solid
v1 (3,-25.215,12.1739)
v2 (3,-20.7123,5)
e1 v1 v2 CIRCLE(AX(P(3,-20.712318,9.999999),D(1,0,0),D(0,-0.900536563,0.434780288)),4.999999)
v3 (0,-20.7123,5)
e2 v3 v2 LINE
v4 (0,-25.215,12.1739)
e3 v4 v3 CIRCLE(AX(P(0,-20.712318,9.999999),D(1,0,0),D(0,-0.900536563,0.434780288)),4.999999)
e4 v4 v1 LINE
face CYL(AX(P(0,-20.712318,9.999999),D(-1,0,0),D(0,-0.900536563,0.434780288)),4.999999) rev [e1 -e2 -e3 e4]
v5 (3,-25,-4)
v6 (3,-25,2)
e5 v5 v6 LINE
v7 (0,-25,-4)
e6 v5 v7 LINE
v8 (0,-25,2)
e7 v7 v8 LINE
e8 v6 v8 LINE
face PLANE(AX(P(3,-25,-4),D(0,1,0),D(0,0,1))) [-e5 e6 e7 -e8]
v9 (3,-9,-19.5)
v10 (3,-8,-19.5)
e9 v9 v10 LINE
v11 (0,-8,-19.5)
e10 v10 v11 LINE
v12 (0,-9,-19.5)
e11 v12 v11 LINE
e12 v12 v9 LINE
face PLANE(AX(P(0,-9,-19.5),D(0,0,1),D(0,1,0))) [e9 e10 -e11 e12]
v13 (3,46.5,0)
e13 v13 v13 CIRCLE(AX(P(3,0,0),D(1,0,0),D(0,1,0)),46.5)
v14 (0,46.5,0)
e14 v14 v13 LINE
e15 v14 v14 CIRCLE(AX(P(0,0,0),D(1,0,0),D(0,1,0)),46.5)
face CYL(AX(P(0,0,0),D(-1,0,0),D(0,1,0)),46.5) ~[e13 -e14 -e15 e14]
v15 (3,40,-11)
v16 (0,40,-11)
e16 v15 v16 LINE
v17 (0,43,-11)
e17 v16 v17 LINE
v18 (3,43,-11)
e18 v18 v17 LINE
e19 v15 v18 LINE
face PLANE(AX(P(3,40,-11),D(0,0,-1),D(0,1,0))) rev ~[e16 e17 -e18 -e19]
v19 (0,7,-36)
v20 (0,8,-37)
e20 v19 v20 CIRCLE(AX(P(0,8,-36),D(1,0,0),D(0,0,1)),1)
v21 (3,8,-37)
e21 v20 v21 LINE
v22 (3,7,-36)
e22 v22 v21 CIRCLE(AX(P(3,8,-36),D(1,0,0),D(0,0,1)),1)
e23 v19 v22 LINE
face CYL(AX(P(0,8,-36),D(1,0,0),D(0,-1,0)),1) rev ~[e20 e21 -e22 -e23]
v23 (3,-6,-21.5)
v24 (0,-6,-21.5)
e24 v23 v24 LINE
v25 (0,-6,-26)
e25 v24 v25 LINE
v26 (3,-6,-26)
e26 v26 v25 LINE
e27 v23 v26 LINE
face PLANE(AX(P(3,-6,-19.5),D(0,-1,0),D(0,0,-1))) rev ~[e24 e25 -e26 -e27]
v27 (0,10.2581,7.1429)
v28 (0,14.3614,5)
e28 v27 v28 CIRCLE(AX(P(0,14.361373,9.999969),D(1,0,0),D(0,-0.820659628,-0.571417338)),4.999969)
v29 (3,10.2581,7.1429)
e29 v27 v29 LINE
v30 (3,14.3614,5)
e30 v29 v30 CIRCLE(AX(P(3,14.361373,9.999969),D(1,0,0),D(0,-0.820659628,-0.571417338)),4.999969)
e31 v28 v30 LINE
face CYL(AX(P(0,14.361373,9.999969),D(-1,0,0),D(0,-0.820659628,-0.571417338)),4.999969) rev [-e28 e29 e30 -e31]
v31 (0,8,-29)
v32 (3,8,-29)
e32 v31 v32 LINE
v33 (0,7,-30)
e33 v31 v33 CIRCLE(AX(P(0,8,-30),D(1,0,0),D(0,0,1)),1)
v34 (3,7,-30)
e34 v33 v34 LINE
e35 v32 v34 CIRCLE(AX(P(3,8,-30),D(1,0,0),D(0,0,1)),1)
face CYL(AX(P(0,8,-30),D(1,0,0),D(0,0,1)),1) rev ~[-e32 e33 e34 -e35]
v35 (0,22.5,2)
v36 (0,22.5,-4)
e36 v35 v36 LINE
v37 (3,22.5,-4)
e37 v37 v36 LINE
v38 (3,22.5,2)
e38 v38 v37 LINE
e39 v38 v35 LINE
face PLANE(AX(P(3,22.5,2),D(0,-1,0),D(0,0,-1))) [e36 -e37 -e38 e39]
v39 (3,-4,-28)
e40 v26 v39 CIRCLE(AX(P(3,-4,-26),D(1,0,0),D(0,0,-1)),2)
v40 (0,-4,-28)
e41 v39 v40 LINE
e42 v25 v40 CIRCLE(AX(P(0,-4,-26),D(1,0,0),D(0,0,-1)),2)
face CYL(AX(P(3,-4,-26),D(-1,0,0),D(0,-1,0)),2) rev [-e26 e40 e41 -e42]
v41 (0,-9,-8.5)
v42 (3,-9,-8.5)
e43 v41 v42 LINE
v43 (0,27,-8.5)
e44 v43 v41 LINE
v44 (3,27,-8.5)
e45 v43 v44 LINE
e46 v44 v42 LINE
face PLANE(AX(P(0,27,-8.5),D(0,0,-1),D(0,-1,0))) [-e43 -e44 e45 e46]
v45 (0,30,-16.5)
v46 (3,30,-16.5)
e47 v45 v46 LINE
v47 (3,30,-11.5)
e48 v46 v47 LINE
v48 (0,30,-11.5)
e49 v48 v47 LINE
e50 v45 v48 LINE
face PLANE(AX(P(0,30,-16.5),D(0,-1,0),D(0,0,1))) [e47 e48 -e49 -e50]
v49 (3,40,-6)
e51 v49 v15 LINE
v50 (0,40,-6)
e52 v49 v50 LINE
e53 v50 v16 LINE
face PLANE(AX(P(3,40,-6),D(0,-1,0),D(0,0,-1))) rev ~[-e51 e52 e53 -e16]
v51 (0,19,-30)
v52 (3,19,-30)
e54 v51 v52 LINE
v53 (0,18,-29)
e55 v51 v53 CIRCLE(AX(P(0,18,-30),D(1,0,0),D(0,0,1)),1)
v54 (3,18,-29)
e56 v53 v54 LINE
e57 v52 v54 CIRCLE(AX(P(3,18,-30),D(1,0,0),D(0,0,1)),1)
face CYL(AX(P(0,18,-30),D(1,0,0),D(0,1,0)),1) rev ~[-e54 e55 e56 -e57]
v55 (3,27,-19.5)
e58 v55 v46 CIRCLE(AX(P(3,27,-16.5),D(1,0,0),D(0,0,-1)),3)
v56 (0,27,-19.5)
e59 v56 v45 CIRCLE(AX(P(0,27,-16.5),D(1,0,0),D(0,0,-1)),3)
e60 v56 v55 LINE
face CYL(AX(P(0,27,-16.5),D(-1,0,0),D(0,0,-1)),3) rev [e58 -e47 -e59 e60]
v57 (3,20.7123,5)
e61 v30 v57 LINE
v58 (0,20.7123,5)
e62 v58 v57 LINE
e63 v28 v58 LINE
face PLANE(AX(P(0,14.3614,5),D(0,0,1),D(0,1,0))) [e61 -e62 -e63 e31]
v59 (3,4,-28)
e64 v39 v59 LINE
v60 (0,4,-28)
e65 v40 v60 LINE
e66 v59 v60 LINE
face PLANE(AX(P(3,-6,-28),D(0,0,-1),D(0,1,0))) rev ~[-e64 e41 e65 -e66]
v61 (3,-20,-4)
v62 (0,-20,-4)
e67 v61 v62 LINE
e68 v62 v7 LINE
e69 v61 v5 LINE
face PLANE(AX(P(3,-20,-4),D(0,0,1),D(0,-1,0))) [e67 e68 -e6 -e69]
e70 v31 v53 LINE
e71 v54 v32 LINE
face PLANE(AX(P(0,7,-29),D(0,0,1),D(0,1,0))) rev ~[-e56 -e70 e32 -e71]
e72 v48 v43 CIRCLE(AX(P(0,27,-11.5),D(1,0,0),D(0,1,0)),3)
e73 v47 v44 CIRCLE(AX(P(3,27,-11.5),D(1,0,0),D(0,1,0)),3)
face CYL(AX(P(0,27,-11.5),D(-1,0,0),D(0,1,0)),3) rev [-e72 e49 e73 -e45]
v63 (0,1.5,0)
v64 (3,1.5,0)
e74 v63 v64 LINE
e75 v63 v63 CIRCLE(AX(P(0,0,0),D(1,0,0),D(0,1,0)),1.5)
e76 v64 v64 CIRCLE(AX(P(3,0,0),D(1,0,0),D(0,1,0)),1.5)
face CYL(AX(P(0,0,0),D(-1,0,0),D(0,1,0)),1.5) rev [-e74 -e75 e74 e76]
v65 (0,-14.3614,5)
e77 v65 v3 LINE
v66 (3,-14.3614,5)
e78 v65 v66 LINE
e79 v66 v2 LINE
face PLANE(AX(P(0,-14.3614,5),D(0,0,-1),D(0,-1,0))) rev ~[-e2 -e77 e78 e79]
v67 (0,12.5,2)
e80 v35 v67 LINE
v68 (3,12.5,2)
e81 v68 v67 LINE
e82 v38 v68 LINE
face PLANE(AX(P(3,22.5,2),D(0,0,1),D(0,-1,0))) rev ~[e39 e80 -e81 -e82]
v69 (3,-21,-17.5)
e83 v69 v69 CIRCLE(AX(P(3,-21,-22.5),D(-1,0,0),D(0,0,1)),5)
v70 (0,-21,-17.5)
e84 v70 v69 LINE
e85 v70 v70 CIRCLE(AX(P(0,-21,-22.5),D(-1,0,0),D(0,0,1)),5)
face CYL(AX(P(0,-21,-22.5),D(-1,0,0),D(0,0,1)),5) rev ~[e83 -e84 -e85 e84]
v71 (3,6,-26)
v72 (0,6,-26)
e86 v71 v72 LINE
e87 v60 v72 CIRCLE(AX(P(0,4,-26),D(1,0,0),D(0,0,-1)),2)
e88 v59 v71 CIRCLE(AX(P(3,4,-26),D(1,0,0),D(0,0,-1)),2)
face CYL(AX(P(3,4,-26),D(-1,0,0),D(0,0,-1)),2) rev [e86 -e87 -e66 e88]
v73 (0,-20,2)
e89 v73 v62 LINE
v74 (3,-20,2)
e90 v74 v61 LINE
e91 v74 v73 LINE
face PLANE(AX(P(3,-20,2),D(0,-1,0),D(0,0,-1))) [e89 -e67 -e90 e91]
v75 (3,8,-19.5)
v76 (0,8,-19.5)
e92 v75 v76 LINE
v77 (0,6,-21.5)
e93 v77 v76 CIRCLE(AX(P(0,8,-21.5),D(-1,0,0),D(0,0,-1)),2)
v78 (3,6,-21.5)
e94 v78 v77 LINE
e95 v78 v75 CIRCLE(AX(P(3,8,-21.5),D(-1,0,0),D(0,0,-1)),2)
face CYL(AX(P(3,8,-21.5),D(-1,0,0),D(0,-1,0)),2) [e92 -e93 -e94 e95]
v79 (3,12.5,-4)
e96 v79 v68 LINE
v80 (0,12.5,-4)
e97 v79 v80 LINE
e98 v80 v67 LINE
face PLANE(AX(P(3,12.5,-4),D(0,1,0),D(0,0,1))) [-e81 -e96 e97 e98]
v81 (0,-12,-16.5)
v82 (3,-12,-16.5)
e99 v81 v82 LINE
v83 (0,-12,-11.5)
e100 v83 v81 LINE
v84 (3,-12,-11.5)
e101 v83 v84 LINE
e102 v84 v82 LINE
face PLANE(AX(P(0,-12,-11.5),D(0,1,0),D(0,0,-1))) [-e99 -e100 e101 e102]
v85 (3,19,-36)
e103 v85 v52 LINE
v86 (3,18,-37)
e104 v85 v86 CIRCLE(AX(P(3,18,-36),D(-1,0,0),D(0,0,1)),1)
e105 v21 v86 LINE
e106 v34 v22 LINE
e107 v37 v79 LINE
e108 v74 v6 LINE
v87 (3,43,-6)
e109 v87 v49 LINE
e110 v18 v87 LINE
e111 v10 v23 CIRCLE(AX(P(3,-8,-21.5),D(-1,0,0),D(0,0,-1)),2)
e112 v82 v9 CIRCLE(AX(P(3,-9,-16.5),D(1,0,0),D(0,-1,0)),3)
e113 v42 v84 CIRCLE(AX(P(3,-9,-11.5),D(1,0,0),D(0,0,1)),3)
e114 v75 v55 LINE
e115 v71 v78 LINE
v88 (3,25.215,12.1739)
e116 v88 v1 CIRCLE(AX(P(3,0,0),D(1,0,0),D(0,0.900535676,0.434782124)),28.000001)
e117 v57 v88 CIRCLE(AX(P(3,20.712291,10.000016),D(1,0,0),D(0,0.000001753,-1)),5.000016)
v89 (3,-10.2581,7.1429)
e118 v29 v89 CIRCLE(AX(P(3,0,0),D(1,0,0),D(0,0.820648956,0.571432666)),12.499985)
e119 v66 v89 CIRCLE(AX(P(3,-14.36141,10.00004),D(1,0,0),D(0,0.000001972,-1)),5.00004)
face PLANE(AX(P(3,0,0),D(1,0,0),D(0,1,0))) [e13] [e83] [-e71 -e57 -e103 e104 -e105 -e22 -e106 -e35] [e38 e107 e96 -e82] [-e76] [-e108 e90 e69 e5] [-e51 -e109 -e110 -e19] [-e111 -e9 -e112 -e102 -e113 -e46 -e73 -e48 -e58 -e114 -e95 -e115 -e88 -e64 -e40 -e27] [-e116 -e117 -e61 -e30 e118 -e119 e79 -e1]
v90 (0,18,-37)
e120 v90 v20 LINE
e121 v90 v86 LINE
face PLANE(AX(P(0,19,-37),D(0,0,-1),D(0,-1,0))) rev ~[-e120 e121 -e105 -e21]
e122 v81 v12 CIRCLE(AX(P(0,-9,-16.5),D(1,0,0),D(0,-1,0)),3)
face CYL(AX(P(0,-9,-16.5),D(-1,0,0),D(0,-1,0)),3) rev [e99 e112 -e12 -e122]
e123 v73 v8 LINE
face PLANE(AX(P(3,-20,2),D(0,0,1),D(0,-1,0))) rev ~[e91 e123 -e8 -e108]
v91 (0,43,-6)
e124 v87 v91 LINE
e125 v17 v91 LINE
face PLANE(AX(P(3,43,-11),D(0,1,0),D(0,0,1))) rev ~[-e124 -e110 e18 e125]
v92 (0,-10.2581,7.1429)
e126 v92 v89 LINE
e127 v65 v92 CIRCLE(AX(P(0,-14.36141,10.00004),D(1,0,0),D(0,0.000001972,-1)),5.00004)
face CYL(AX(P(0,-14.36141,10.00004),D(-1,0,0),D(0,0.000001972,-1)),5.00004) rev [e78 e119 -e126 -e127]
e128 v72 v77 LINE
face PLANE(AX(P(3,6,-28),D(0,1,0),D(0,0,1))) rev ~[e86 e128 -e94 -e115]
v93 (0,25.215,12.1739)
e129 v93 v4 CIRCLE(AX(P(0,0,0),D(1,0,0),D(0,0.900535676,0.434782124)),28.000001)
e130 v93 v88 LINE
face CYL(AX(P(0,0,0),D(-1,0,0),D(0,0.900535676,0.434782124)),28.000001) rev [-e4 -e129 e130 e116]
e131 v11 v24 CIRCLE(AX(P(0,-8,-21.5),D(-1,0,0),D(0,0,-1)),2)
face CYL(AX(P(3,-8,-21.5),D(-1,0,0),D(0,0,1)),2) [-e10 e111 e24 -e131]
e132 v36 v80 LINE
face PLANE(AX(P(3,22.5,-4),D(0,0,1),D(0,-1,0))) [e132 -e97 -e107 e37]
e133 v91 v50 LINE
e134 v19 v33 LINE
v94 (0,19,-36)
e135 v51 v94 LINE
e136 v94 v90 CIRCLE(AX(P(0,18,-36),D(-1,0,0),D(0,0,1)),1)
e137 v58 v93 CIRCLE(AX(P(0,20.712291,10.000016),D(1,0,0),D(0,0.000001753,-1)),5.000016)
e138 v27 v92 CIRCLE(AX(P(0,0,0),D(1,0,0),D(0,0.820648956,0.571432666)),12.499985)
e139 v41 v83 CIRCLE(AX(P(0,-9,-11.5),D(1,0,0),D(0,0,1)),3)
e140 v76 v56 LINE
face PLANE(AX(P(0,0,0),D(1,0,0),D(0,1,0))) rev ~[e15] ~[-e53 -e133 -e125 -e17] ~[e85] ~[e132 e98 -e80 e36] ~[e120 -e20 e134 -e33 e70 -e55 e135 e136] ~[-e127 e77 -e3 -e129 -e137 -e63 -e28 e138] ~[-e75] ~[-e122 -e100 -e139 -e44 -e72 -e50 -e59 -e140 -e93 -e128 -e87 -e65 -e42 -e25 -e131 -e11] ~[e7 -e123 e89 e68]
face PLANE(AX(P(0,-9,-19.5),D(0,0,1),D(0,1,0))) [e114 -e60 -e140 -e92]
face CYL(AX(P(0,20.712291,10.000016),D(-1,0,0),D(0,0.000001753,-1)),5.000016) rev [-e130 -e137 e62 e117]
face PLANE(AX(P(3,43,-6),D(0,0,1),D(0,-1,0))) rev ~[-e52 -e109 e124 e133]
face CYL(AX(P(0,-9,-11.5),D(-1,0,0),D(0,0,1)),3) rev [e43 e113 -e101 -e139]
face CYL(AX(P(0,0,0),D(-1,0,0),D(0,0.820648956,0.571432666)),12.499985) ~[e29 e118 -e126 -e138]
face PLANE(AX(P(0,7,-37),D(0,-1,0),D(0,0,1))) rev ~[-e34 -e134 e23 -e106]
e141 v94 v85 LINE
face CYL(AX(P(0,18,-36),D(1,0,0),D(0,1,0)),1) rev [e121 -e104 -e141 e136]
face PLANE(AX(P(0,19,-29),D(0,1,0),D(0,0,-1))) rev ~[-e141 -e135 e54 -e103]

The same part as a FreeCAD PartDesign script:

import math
import FreeCAD as App
import Part
import Sketcher
from FreeCAD import Vector
Q = App.Units.Quantity


def edges_at(feature, points):
    """Names of the edges that pass closest to the given points."""
    edges = feature.Shape.Edges
    near = lambda p: min(range(len(edges)), key=lambda i: edges[i].distToShape(Part.Vertex(*p))[0])
    return sorted({f"Edge{near(p) + 1}" for p in points})


def add_polygon(sketch, points):
    """Adds a closed chain of lines whose ends are joined by coincident constraints."""
    first, n = sketch.GeometryCount, len(points)
    for a, b in zip(points, points[1:] + points[:1]):
        sketch.addGeometry(Part.LineSegment(App.Vector(*a, 0), App.Vector(*b, 0)), False)
    for i in range(n):
        sketch.addConstraint(Sketcher.Constraint("Coincident", first + i, 2, first + (i + 1) % n, 1))

doc = App.newDocument("Part")
body = doc.addObject("PartDesign::Body", "Body")

sketch1 = body.newObject("Sketcher::SketchObject", "Sketch")
sketch1.AttachmentSupport = (doc.getObject("YZ_Plane"), [""])
sketch1.MapMode = "FlatFace"
sketch1.addGeometry([
    Part.Circle(Vector(0, 0, 0), Vector(0, 0, 1), 46.5),
    Part.LineSegment(Vector(-9, -8.5, 0), Vector(27, -8.5, 0)),
    Part.ArcOfCircle(Part.Circle(Vector(27, -11.5, 0), Vector(0, 0, 1), 3), math.radians(0), math.radians(90)),
    Part.LineSegment(Vector(30, -11.5, 0), Vector(30, -16.5, 0)),
    Part.ArcOfCircle(Part.Circle(Vector(27, -16.5, 0), Vector(0, 0, 1), 3), math.radians(-90), math.radians(0)),
    Part.LineSegment(Vector(27, -19.5, 0), Vector(-9, -19.5, 0)),
    Part.ArcOfCircle(Part.Circle(Vector(-9, -16.5, 0), Vector(0, 0, 1), 3), math.radians(180), math.radians(270)),
    Part.LineSegment(Vector(-12, -16.5, 0), Vector(-12, -11.5, 0)),
    Part.ArcOfCircle(Part.Circle(Vector(-9, -11.5, 0), Vector(0, 0, 1), 3), math.radians(90), math.radians(180)),
    Part.ArcOfCircle(Part.Circle(Vector(0, 0, 0), Vector(0, 0, 1), 28), math.radians(26), math.radians(154)),
    Part.ArcOfCircle(Part.Circle(Vector(20.7, 10, 0), Vector(0, 0, 1), 5), math.radians(-90), math.radians(26)),
    Part.LineSegment(Vector(20.7, 5, 0), Vector(14.4, 5, 0)),
    Part.ArcOfCircle(Part.Circle(Vector(14.4, 10, 0), Vector(0, 0, 1), 5), math.radians(-145), math.radians(-90)),
    Part.ArcOfCircle(Part.Circle(Vector(0, 0, 0), Vector(0, 0, 1), 12.5), math.radians(35), math.radians(145)),
    Part.ArcOfCircle(Part.Circle(Vector(-14.4, 10, 0), Vector(0, 0, 1), 5), math.radians(-90), math.radians(-35)),
    Part.LineSegment(Vector(-14.4, 5, 0), Vector(-20.7, 5, 0)),
    Part.ArcOfCircle(Part.Circle(Vector(-20.7, 10, 0), Vector(0, 0, 1), 5), math.radians(154), math.radians(270)),
    Part.Circle(Vector(0, 0, 0), Vector(0, 0, 1), 1.5),
], False)
sketch1.addConstraint([
    Sketcher.Constraint("Tangent", 1, 2, 2, 2),
    Sketcher.Constraint("Tangent", 2, 1, 3, 1),
    Sketcher.Constraint("Tangent", 3, 2, 4, 2),
    Sketcher.Constraint("Tangent", 4, 1, 5, 1),
    Sketcher.Constraint("Tangent", 5, 2, 6, 2),
    Sketcher.Constraint("Tangent", 6, 1, 7, 1),
    Sketcher.Constraint("Tangent", 7, 2, 8, 2),
    Sketcher.Constraint("Tangent", 8, 1, 1, 1),
    Sketcher.Constraint("Tangent", 9, 1, 10, 2),
    Sketcher.Constraint("Tangent", 10, 1, 11, 1),
    Sketcher.Constraint("Tangent", 11, 2, 12, 2),
    Sketcher.Constraint("Tangent", 12, 1, 13, 1),
    Sketcher.Constraint("Tangent", 13, 2, 14, 2),
    Sketcher.Constraint("Tangent", 14, 1, 15, 1),
    Sketcher.Constraint("Tangent", 15, 2, 16, 2),
    Sketcher.Constraint("Tangent", 16, 1, 9, 2),
    Sketcher.Constraint("Horizontal", 1),
    Sketcher.Constraint("Vertical", 3),
    Sketcher.Constraint("Horizontal", 5),
    Sketcher.Constraint("Vertical", 7),
    Sketcher.Constraint("Horizontal", 11),
    Sketcher.Constraint("Horizontal", 15),
    Sketcher.Constraint("Coincident", 0, 3, -1, 1),
    Sketcher.Constraint("Coincident", 9, 3, -1, 1),
    Sketcher.Constraint("Coincident", 13, 3, -1, 1),
    Sketcher.Constraint("Coincident", 17, 3, -1, 1),
    Sketcher.Constraint("Equal", 2, 4),
    Sketcher.Constraint("Equal", 4, 6),
    Sketcher.Constraint("Equal", 6, 8),
    Sketcher.Constraint("Equal", 10, 12),
    Sketcher.Constraint("Equal", 12, 14),
    Sketcher.Constraint("Equal", 14, 16),
    Sketcher.Constraint("Horizontal", 12, 3, 14, 3),
    Sketcher.Constraint("Diameter", 0, Q("93 mm")),
    Sketcher.Constraint("Diameter", 17, Q("3 mm")),
    Sketcher.Constraint("Radius", 2, Q("3 mm")),
    Sketcher.Constraint("Radius", 9, Q("28 mm")),
    Sketcher.Constraint("Radius", 10, Q("5 mm")),
    Sketcher.Constraint("Radius", 13, Q("12.5 mm")),
    Sketcher.Constraint("DistanceY", 3, 2, 3, 1, Q("5 mm")),
    Sketcher.Constraint("DistanceX", 6, 1, -1, 1, Q("12 mm")),
    Sketcher.Constraint("DistanceY", -1, 1, 10, 1, Q("5 mm")),
    Sketcher.Constraint("DistanceY", 1, 2, -1, 1, Q("8.5 mm")),
    Sketcher.Constraint("DistanceX", 1, 1, 1, 2, Q("36 mm")),
])
pad1 = body.newObject("PartDesign::Pad", "Pad")
pad1.Profile = sketch1
pad1.Length = 3

sketch2 = body.newObject("Sketcher::SketchObject", "Sketch001")
sketch2.AttachmentSupport = (doc.getObject("YZ_Plane"), [""])
sketch2.MapMode = "FlatFace"
sketch2.AttachmentOffset = App.Placement(Vector(0, 0, 3), App.Rotation())
add_polygon(sketch2, [(40, -11), (43, -11), (43, -6), (40, -6)])
sketch2.addConstraint([
    Sketcher.Constraint("Horizontal", 0),
    Sketcher.Constraint("Vertical", 1),
    Sketcher.Constraint("Horizontal", 2),
    Sketcher.Constraint("Vertical", 3),
    Sketcher.Constraint("DistanceX", 0, 1, 0, 2, Q("3 mm")),
    Sketcher.Constraint("DistanceY", 1, 1, 1, 2, Q("5 mm")),
    Sketcher.Constraint("DistanceY", 1, 2, -1, 1, Q("6 mm")),
    Sketcher.Constraint("DistanceX", -1, 1, 2, 2, Q("40 mm")),
])
pocket1 = body.newObject("PartDesign::Pocket", "Pocket")
pocket1.Profile = sketch2
pocket1.Type = "ThroughAll"

sketch3 = body.newObject("Sketcher::SketchObject", "Sketch002")
sketch3.AttachmentSupport = (doc.getObject("YZ_Plane"), [""])
sketch3.MapMode = "FlatFace"
sketch3.AttachmentOffset = App.Placement(Vector(0, 0, 3), App.Rotation())
add_polygon(sketch3, [(-20, -4), (-20, 2), (-25, 2), (-25, -4)])
add_polygon(sketch3, [(22, -4), (22, 2), (12, 2), (12, -4)])
sketch3.addConstraint([
    Sketcher.Constraint("Vertical", 0),
    Sketcher.Constraint("Horizontal", 1),
    Sketcher.Constraint("Vertical", 2),
    Sketcher.Constraint("Horizontal", 3),
    Sketcher.Constraint("Vertical", 4),
    Sketcher.Constraint("Horizontal", 5),
    Sketcher.Constraint("Vertical", 6),
    Sketcher.Constraint("Horizontal", 7),
    Sketcher.Constraint("Horizontal", 1, 2, 4, 2),
    Sketcher.Constraint("Horizontal", 3, 2, 6, 2),
    Sketcher.Constraint("DistanceX", 1, 2, 1, 1, Q("5 mm")),
    Sketcher.Constraint("DistanceX", 5, 2, 5, 1, Q("10 mm")),
    Sketcher.Constraint("DistanceY", 0, 1, 0, 2, Q("6 mm")),
    Sketcher.Constraint("DistanceX", 0, 2, -1, 1, Q("20 mm")),
    Sketcher.Constraint("DistanceY", -1, 1, 0, 2, Q("2 mm")),
    Sketcher.Constraint("DistanceX", -1, 1, 5, 2, Q("12.5 mm")),
])
pocket2 = body.newObject("PartDesign::Pocket", "Pocket001")
pocket2.Profile = sketch3
pocket2.Type = "ThroughAll"

sketch4 = body.newObject("Sketcher::SketchObject", "Sketch003")
sketch4.AttachmentSupport = (doc.getObject("YZ_Plane"), [""])
sketch4.MapMode = "FlatFace"
sketch4.AttachmentOffset = App.Placement(Vector(0, 0, 3), App.Rotation())
add_polygon(sketch4, [(6, -20), (-6, -20), (-6, -28), (6, -28)])
sketch4.addConstraint([
    Sketcher.Constraint("Horizontal", 0),
    Sketcher.Constraint("Vertical", 1),
    Sketcher.Constraint("Horizontal", 2),
    Sketcher.Constraint("Vertical", 3),
    Sketcher.Constraint("DistanceX", 0, 2, 0, 1, Q("12 mm")),
    Sketcher.Constraint("DistanceY", 1, 2, 1, 1, Q("8.5 mm")),
    Sketcher.Constraint("DistanceX", 0, 2, -1, 1, Q("6 mm")),
    Sketcher.Constraint("DistanceY", 1, 2, -1, 1, Q("28 mm")),
])
pocket3 = body.newObject("PartDesign::Pocket", "Pocket002")
pocket3.Profile = sketch4
pocket3.Type = "ThroughAll"
doc.recompute()

fillet = body.newObject("PartDesign::Fillet", "Fillet")
fillet.Base = (pocket3, edges_at(pocket3, [
    (1.5, -6, -19.5),
    (1.5, -6, -28),
    (1.5, 6, -28),
    (1.5, 6, -19.5),
]))
fillet.Radius = 2

sketch5 = body.newObject("Sketcher::SketchObject", "Sketch004")
sketch5.AttachmentSupport = (doc.getObject("YZ_Plane"), [""])
sketch5.MapMode = "FlatFace"
add_polygon(sketch5, [(19, -37), (7, -37), (7, -29), (19, -29)])
sketch5.addConstraint([
    Sketcher.Constraint("Horizontal", 0),
    Sketcher.Constraint("Vertical", 1),
    Sketcher.Constraint("Horizontal", 2),
    Sketcher.Constraint("Vertical", 3),
    Sketcher.Constraint("DistanceX", 0, 2, 0, 1, Q("12 mm")),
    Sketcher.Constraint("DistanceY", 1, 1, 1, 2, Q("8 mm")),
    Sketcher.Constraint("DistanceX", -1, 1, 0, 2, Q("7 mm")),
    Sketcher.Constraint("DistanceY", 1, 2, -1, 1, Q("29 mm")),
])
pocket4 = body.newObject("PartDesign::Pocket", "Pocket003")
pocket4.Profile = sketch5
pocket4.Type = "ThroughAll"
pocket4.Reversed = True
doc.recompute()

fillet2 = body.newObject("PartDesign::Fillet", "Fillet001")
fillet2.Base = (pocket4, edges_at(pocket4, [
    (1.5, 7, -29),
    (1.5, 7, -37),
    (1.5, 19, -37),
    (1.5, 19, -29),
]))
fillet2.Radius = 1

sketch6 = body.newObject("Sketcher::SketchObject", "Sketch005")
sketch6.AttachmentSupport = (doc.getObject("YZ_Plane"), [""])
sketch6.MapMode = "FlatFace"
sketch6.addGeometry(Part.Circle(Vector(-21, -22, 0), Vector(0, 0, 1), 5), False)
sketch6.addConstraint([
    Sketcher.Constraint("Diameter", 0, Q("10 mm")),
    Sketcher.Constraint("DistanceX", 0, 3, -1, 1, Q("21 mm")),
    Sketcher.Constraint("DistanceY", 0, 3, -1, 1, Q("22.5 mm")),
])
pocket5 = body.newObject("PartDesign::Pocket", "Pocket004")
pocket5.Profile = sketch6
pocket5.Type = "ThroughAll"
pocket5.Reversed = True

doc.recompute()
